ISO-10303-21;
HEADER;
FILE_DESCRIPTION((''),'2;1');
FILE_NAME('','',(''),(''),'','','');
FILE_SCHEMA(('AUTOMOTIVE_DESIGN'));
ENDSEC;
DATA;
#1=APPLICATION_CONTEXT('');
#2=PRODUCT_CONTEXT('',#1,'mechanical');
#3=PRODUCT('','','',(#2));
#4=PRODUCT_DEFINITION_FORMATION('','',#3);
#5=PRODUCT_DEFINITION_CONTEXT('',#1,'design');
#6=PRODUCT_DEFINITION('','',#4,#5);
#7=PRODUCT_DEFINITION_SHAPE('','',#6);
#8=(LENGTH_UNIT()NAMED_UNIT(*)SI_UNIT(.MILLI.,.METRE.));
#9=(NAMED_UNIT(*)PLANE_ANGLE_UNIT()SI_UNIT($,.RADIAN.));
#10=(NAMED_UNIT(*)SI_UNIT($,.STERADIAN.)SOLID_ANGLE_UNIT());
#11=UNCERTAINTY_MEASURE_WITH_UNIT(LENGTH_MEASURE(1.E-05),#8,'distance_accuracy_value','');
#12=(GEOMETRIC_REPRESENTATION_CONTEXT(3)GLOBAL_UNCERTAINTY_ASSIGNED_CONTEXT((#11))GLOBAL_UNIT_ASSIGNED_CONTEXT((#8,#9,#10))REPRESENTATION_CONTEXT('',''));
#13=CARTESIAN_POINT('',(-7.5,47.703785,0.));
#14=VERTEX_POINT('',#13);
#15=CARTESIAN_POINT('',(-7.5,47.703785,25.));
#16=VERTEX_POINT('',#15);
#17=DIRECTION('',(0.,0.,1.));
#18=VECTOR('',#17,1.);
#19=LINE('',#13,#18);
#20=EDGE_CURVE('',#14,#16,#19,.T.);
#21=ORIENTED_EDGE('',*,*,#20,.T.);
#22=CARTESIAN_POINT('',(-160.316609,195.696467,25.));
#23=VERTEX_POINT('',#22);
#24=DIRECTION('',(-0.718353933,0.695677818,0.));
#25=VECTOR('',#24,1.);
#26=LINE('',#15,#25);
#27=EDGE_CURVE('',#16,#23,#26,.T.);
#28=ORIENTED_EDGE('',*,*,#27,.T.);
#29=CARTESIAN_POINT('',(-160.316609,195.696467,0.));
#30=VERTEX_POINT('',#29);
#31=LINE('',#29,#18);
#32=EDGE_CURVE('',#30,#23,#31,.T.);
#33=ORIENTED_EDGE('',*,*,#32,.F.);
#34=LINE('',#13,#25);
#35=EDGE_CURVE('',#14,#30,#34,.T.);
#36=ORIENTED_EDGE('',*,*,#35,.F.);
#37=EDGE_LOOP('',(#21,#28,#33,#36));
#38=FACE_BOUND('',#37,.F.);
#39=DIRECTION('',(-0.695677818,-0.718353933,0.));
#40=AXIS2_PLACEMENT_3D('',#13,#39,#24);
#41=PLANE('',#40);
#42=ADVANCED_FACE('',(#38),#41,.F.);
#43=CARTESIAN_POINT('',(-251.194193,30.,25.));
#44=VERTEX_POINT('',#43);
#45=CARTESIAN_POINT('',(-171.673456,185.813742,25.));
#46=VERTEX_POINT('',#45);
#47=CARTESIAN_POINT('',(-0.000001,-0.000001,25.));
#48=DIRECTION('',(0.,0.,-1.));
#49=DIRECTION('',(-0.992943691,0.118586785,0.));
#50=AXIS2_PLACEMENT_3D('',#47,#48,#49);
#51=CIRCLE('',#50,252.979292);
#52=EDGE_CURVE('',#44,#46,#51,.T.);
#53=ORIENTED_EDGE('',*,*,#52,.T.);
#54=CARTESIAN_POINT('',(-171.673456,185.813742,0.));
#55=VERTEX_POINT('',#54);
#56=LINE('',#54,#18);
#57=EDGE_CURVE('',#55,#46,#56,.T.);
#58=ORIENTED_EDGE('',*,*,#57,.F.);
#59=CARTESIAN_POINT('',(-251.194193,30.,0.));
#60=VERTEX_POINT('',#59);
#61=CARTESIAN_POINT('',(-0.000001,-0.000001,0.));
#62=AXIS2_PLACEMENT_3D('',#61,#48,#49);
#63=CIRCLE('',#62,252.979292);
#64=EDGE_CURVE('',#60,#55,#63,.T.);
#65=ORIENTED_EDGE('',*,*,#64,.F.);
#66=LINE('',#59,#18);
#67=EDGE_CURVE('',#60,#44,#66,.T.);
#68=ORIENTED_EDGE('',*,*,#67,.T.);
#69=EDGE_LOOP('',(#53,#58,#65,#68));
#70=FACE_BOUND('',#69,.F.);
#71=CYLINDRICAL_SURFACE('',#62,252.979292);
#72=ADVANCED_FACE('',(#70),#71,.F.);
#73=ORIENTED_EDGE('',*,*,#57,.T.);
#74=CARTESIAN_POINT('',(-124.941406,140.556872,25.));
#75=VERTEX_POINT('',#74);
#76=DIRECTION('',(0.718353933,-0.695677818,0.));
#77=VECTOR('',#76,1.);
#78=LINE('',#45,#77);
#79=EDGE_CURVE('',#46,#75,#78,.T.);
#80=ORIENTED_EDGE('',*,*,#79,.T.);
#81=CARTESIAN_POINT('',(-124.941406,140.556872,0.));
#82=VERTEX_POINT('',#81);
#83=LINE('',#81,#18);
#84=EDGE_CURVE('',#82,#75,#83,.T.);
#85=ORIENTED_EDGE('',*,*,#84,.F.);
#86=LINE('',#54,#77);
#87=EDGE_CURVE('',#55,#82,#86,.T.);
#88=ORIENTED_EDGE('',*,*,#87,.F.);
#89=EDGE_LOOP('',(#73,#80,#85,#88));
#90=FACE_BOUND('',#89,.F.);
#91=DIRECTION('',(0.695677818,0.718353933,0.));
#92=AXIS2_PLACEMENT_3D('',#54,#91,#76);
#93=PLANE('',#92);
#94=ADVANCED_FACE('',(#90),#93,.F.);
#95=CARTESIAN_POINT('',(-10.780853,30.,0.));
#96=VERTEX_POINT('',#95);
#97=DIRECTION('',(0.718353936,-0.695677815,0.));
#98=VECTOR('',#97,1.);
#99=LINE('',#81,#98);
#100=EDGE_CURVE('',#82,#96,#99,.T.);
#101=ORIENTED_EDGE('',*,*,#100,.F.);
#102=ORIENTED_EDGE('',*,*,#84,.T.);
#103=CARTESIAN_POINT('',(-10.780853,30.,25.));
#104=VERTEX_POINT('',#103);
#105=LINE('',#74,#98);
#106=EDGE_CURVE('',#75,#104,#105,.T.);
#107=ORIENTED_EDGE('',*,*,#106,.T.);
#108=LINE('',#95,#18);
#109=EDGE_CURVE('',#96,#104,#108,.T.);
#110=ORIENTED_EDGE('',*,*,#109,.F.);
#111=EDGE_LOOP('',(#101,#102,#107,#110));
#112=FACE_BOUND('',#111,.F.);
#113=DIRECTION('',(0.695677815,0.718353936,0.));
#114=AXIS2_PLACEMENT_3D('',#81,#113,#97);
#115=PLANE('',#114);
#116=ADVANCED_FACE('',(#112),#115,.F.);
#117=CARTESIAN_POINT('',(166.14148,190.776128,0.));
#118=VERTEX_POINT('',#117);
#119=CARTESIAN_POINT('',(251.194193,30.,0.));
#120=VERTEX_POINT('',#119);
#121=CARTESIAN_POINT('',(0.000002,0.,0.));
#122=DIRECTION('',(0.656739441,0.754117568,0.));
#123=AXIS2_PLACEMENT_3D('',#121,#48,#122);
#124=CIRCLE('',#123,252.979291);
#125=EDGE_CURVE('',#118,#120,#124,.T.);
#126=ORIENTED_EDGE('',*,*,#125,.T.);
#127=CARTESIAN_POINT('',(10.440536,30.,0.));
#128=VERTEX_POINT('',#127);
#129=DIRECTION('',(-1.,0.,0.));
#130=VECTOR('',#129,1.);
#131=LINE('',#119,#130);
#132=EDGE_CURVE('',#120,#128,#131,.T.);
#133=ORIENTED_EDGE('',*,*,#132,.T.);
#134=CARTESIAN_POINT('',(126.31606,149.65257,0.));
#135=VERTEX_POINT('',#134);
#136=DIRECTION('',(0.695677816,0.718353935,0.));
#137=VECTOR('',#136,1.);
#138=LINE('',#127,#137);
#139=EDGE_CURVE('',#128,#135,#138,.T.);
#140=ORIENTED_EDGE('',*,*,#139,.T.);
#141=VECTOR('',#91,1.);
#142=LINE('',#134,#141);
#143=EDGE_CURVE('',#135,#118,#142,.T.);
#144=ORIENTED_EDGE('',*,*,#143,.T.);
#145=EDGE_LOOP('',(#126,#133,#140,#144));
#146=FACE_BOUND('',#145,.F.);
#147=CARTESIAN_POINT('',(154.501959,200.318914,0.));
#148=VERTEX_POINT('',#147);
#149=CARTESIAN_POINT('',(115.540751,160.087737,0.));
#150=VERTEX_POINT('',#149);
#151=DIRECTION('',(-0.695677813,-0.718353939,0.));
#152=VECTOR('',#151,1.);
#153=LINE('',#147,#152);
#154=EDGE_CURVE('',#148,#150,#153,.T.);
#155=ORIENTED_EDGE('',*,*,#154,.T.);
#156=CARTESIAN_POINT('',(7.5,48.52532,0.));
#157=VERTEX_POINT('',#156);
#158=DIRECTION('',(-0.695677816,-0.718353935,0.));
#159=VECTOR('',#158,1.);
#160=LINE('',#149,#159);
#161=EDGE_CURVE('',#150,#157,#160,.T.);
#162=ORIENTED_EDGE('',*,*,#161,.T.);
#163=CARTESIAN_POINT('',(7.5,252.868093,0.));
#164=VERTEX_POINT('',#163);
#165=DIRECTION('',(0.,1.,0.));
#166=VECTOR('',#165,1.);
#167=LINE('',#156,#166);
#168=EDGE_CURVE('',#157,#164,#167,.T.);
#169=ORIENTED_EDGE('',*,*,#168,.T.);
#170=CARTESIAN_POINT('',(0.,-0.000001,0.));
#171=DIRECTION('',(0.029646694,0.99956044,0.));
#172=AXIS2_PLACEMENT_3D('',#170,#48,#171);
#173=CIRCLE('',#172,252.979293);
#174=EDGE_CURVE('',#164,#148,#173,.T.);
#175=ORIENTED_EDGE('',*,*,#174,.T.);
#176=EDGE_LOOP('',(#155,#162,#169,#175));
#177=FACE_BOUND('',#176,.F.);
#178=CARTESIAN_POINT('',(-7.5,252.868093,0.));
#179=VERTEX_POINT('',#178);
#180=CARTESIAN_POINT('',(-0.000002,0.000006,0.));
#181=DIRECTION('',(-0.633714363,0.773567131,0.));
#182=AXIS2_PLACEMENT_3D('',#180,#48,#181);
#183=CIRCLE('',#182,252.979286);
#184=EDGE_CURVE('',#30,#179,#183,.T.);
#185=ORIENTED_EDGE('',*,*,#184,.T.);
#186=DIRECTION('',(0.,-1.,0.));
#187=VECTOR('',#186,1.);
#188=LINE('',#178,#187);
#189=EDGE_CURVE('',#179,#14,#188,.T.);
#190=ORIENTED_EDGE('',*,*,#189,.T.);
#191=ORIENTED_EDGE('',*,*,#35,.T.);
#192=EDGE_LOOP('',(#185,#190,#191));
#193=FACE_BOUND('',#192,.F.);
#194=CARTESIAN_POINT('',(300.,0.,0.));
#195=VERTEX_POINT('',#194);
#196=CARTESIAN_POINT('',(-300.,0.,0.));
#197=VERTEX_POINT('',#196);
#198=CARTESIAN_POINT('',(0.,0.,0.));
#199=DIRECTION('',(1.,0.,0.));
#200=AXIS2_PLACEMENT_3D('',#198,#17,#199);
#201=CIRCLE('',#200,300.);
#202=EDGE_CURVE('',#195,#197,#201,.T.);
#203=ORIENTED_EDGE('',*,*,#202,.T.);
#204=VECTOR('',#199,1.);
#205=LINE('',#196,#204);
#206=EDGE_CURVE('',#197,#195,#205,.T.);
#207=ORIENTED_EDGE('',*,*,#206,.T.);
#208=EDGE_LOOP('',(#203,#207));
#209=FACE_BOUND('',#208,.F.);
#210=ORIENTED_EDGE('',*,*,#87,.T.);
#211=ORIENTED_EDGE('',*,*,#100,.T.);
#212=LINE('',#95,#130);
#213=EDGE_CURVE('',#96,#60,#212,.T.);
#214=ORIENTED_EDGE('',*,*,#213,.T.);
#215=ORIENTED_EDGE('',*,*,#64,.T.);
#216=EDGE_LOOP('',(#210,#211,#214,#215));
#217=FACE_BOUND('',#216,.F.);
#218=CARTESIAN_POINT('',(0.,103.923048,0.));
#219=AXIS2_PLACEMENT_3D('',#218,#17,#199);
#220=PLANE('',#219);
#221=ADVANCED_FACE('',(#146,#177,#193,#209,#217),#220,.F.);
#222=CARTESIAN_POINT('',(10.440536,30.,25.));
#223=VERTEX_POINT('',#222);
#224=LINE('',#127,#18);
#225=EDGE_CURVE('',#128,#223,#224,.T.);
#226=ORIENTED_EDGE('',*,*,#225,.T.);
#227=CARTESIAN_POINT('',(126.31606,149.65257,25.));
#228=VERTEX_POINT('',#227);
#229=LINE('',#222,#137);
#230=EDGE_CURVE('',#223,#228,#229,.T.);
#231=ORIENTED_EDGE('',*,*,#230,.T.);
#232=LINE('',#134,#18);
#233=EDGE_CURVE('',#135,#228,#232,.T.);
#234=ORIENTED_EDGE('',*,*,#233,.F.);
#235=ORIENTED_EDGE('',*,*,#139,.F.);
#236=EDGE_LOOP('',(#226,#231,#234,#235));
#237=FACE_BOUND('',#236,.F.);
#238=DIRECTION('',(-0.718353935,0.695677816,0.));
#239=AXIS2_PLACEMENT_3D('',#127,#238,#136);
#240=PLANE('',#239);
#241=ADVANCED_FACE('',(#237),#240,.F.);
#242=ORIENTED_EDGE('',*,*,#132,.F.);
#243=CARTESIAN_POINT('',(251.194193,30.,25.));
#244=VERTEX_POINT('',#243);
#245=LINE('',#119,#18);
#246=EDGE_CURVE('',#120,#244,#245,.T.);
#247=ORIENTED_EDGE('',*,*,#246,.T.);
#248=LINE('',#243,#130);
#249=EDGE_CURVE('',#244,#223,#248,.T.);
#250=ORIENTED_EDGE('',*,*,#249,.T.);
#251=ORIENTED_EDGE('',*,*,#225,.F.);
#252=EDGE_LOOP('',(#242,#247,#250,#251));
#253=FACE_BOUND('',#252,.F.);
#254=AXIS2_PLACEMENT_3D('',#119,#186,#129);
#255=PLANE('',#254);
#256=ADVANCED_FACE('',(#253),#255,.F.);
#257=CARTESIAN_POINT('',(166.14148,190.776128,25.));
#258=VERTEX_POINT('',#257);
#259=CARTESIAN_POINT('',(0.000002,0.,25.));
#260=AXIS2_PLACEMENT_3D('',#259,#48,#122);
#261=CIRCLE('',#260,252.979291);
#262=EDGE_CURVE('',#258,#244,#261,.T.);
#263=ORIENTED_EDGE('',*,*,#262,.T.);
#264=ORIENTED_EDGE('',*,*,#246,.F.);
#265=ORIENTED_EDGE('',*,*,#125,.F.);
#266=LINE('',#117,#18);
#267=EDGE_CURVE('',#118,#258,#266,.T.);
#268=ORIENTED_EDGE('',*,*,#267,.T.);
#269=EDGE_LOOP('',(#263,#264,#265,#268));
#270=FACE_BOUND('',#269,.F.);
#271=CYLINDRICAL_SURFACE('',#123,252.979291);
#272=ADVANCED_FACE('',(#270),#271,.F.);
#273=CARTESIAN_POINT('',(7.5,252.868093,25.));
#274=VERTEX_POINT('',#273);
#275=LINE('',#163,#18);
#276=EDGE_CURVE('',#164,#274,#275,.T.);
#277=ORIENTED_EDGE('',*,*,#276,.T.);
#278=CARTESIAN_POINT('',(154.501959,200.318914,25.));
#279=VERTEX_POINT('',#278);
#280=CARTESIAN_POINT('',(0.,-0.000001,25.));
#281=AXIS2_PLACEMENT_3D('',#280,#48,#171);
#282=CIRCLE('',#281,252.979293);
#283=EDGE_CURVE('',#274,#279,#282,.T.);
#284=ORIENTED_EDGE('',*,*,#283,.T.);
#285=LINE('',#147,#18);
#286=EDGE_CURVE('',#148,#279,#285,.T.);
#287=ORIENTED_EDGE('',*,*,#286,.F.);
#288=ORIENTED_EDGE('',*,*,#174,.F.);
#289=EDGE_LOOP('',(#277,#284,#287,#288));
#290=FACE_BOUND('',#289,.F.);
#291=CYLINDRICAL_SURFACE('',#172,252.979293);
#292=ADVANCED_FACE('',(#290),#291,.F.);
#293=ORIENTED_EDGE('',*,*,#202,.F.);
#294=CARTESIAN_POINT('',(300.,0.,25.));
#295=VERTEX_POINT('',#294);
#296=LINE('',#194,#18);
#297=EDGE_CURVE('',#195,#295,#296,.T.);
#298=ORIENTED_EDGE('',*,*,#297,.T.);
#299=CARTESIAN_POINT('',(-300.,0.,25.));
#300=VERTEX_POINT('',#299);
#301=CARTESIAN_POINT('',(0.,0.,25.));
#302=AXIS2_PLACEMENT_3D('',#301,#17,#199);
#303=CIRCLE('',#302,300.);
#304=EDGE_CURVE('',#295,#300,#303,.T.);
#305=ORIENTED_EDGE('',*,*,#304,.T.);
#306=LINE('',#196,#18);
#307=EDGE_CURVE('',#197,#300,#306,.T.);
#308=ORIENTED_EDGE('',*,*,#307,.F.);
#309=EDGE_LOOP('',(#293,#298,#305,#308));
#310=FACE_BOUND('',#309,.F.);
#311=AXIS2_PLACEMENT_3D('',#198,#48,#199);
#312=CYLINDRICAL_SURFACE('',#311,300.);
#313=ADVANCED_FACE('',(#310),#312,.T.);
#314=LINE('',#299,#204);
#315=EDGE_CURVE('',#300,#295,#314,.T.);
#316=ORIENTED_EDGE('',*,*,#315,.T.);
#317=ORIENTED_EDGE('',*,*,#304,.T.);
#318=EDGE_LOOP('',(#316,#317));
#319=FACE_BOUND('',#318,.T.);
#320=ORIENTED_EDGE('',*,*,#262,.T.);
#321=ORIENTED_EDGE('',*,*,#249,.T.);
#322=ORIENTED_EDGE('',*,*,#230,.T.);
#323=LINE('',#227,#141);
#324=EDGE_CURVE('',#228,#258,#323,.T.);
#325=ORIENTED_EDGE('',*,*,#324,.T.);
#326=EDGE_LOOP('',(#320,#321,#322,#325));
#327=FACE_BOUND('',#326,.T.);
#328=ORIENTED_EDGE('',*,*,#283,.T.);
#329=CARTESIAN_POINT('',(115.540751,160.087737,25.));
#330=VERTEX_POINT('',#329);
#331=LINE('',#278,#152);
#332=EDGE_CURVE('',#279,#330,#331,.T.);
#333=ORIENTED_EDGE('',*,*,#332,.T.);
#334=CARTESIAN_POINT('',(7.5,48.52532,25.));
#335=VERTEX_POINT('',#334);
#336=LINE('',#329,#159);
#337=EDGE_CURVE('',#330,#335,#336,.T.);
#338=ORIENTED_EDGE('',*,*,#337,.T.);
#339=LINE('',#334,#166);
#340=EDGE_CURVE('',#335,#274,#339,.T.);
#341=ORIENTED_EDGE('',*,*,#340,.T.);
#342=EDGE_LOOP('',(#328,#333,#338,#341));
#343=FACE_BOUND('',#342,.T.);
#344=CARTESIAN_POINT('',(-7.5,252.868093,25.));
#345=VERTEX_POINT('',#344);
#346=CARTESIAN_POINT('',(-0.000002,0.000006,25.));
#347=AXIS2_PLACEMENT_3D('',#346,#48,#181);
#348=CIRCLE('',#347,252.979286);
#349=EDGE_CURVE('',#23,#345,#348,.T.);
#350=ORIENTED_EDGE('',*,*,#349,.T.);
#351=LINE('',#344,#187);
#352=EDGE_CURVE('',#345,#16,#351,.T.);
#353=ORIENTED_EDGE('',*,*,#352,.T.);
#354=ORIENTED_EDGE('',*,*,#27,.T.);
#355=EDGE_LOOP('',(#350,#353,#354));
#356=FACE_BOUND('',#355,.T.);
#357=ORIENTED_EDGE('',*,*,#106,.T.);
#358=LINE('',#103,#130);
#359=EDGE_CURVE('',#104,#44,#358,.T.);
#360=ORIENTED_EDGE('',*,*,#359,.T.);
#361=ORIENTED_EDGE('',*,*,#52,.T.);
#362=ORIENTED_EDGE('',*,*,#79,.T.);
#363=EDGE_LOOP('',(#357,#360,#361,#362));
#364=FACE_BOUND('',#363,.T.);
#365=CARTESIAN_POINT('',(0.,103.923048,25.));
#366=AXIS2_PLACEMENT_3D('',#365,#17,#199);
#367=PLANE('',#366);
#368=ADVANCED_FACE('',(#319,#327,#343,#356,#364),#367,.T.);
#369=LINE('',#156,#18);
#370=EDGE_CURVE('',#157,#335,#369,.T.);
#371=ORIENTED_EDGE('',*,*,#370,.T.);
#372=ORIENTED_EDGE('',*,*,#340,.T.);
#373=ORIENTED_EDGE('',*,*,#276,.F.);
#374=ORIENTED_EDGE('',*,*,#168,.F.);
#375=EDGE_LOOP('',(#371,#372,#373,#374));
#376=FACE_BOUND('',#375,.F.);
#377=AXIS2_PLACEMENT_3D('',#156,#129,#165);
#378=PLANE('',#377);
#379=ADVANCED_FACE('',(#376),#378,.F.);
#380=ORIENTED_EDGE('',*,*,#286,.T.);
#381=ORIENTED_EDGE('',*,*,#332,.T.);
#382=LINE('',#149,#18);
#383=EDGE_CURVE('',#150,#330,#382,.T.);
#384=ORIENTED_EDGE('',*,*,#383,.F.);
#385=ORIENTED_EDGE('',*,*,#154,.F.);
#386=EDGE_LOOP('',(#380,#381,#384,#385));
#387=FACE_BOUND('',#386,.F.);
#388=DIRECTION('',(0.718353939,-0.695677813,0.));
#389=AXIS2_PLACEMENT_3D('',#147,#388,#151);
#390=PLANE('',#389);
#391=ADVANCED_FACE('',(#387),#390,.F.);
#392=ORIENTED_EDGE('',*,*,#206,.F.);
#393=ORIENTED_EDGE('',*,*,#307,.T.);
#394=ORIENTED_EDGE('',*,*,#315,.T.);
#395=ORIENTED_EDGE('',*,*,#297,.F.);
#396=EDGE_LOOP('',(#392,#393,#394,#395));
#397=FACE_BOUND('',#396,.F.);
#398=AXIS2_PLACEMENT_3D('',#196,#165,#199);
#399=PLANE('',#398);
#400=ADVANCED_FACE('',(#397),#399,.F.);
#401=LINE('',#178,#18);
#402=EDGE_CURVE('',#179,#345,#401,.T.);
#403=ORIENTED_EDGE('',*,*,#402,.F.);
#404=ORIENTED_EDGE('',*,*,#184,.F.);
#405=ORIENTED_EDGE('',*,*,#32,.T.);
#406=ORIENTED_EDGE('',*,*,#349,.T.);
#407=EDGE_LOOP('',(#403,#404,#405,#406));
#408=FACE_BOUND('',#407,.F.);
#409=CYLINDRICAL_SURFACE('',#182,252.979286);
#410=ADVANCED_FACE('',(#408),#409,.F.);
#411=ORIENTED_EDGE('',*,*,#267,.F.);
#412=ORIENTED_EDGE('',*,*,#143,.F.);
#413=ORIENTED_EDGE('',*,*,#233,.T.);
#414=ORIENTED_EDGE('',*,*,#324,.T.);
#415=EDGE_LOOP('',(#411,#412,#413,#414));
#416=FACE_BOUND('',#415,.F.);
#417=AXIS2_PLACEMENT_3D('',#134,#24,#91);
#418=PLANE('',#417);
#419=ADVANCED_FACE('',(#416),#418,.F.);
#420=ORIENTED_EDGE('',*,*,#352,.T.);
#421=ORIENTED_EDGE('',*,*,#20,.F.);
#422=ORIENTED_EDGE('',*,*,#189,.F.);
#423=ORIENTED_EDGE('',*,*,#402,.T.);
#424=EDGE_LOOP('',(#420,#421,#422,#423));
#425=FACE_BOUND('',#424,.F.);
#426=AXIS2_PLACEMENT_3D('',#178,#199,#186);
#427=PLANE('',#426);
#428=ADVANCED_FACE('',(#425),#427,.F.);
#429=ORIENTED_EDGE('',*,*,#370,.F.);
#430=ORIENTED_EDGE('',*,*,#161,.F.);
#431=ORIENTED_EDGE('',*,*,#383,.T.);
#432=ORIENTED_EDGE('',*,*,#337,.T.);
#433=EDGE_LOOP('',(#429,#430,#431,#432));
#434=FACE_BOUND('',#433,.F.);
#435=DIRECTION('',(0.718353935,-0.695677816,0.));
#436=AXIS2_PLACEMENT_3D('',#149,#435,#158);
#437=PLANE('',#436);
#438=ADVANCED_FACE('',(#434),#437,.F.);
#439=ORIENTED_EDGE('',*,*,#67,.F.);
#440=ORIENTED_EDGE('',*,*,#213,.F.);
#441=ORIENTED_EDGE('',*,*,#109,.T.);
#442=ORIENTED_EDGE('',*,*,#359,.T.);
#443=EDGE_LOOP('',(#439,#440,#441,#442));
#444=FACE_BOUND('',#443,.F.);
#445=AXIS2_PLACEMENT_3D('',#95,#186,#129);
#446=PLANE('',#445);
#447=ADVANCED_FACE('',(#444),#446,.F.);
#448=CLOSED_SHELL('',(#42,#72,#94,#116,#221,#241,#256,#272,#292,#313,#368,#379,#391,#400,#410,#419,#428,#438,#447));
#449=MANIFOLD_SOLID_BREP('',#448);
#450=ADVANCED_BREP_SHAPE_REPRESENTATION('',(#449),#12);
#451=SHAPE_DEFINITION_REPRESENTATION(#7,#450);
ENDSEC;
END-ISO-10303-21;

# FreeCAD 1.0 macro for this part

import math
import FreeCAD as App
import Part
import Sketcher
from FreeCAD import Vector

doc = App.newDocument("Part")
body = doc.addObject("PartDesign::Body", "Body")

# Sketch on XY plane
sketch1 = body.newObject("Sketcher::SketchObject", "Sketch")
sketch1.AttachmentSupport = (doc.getObject("XY_Plane"), [""])
sketch1.MapMode = "FlatFace"
sketch1.addGeometry([
    Part.ArcOfCircle(Part.Circle(Vector(0, 0, 0), Vector(0, 0, 1), 300), math.radians(0), math.radians(180)),  # 0
    Part.LineSegment(Vector(-300, 0, 0), Vector(300, 0, 0)),  # 1
    Part.LineSegment(Vector(-172, 186, 0), Vector(-125, 141, 0)),  # 2
    Part.LineSegment(Vector(-125, 141, 0), Vector(-11, 30, 0)),  # 3
    Part.LineSegment(Vector(-11, 30, 0), Vector(-251, 30, 0)),  # 4
    Part.ArcOfCircle(Part.Circle(Vector(0, 0, 0), Vector(0, 0, 1), 253), math.radians(133), math.radians(173)),  # 5
    Part.LineSegment(Vector(126, 150, 0), Vector(166, 191, 0)),  # 6
    Part.ArcOfCircle(Part.Circle(Vector(0, 0, 0), Vector(0, 0, 1), 253), math.radians(7), math.radians(49)),  # 7
    Part.LineSegment(Vector(251, 30, 0), Vector(10, 30, 0)),  # 8
    Part.LineSegment(Vector(10, 30, 0), Vector(126, 150, 0)),  # 9
    Part.LineSegment(Vector(-8, 253, 0), Vector(-8, 48, 0)),  # 10
    Part.LineSegment(Vector(-8, 48, 0), Vector(-160, 196, 0)),  # 11
    Part.ArcOfCircle(Part.Circle(Vector(0, 0, 0), Vector(0, 0, 1), 253), math.radians(92), math.radians(129)),  # 12
    Part.LineSegment(Vector(116, 160, 0), Vector(8, 49, 0)),  # 13
    Part.LineSegment(Vector(8, 49, 0), Vector(8, 253, 0)),  # 14
    Part.ArcOfCircle(Part.Circle(Vector(0, 0, 0), Vector(0, 0, 1), 253), math.radians(52), math.radians(88)),  # 15
    Part.LineSegment(Vector(155, 200, 0), Vector(116, 160, 0)),  # 16
], False)
sketch1.addConstraint([
    Sketcher.Constraint("Coincident", 0, 1, 1, 2),
    Sketcher.Constraint("Coincident", 1, 1, 0, 2),
    Sketcher.Constraint("Coincident", 2, 2, 3, 1),
    Sketcher.Constraint("Coincident", 3, 2, 4, 1),
    Sketcher.Constraint("Coincident", 4, 2, 5, 2),
    Sketcher.Constraint("Coincident", 5, 1, 2, 1),
    Sketcher.Constraint("Coincident", 6, 2, 7, 2),
    Sketcher.Constraint("Coincident", 7, 1, 8, 1),
    Sketcher.Constraint("Coincident", 8, 2, 9, 1),
    Sketcher.Constraint("Coincident", 9, 2, 6, 1),
    Sketcher.Constraint("Coincident", 10, 2, 11, 1),
    Sketcher.Constraint("Coincident", 11, 2, 12, 2),
    Sketcher.Constraint("Coincident", 12, 1, 10, 1),
    Sketcher.Constraint("Coincident", 13, 2, 14, 1),
    Sketcher.Constraint("Coincident", 14, 2, 15, 2),
    Sketcher.Constraint("Coincident", 15, 1, 16, 1),
    Sketcher.Constraint("Coincident", 16, 2, 13, 1),
    Sketcher.Constraint("Horizontal", 1),
    Sketcher.Constraint("Horizontal", 4),
    Sketcher.Constraint("Horizontal", 8),
    Sketcher.Constraint("Vertical", 10),
    Sketcher.Constraint("Vertical", 14),
    Sketcher.Constraint("Coincident", 0, 3, -1, 1),
    Sketcher.Constraint("Coincident", 5, 3, -1, 1),
    Sketcher.Constraint("Coincident", 7, 3, -1, 1),
    Sketcher.Constraint("Coincident", 12, 3, -1, 1),
    Sketcher.Constraint("Coincident", 15, 3, -1, 1),
    Sketcher.Constraint("Equal", 5, 7),
    Sketcher.Constraint("Equal", 5, 15),
    Sketcher.Constraint("Symmetric", 12, 1, 14, 2, -2),
    Sketcher.Constraint("PointOnObject", 0, 1, -1),
    Sketcher.Constraint("Parallel", 2, 3),
    Sketcher.Constraint("Perpendicular", 3, 6),
    Sketcher.Constraint("Parallel", 6, 9),
    Sketcher.Constraint("Perpendicular", 9, 11),
    Sketcher.Constraint("Perpendicular", 11, 13),
    Sketcher.Constraint("Parallel", 13, 16),
    Sketcher.Constraint("Horizontal", 4, 2, 7, 1),
    Sketcher.Constraint("Radius", 0, 300.0),
    Sketcher.Constraint("DistanceY", -1, 1, 3, 2, 30.0),
    Sketcher.Constraint("DistanceX", 10, 2, 13, 2, 15.0),
    Sketcher.Constraint("Radius", 7, 252.979291),
    Sketcher.Constraint("DistanceX", 4, 2, 4, 1, 240.41334),
    Sketcher.Constraint("DistanceX", 9, 2, 15, 1, 28.185899),
    Sketcher.Constraint("Distance", 6, 57.246931),
    Sketcher.Constraint("Distance", 11, 212.731638),
    Sketcher.Constraint("DistanceX", 8, 2, 8, 1, 240.753657),
    Sketcher.Constraint("DistanceY", 10, 2, 10, 1, 205.164308),
    Sketcher.Constraint("DistanceY", -1, 1, 2, 2, 140.556872),
    Sketcher.Constraint("DistanceX", -1, 1, 16, 2, 115.540751),
])
pad1 = body.newObject("PartDesign::Pad", "Pad")
pad1.Profile = sketch1
pad1.Length = 25

doc.recompute()
